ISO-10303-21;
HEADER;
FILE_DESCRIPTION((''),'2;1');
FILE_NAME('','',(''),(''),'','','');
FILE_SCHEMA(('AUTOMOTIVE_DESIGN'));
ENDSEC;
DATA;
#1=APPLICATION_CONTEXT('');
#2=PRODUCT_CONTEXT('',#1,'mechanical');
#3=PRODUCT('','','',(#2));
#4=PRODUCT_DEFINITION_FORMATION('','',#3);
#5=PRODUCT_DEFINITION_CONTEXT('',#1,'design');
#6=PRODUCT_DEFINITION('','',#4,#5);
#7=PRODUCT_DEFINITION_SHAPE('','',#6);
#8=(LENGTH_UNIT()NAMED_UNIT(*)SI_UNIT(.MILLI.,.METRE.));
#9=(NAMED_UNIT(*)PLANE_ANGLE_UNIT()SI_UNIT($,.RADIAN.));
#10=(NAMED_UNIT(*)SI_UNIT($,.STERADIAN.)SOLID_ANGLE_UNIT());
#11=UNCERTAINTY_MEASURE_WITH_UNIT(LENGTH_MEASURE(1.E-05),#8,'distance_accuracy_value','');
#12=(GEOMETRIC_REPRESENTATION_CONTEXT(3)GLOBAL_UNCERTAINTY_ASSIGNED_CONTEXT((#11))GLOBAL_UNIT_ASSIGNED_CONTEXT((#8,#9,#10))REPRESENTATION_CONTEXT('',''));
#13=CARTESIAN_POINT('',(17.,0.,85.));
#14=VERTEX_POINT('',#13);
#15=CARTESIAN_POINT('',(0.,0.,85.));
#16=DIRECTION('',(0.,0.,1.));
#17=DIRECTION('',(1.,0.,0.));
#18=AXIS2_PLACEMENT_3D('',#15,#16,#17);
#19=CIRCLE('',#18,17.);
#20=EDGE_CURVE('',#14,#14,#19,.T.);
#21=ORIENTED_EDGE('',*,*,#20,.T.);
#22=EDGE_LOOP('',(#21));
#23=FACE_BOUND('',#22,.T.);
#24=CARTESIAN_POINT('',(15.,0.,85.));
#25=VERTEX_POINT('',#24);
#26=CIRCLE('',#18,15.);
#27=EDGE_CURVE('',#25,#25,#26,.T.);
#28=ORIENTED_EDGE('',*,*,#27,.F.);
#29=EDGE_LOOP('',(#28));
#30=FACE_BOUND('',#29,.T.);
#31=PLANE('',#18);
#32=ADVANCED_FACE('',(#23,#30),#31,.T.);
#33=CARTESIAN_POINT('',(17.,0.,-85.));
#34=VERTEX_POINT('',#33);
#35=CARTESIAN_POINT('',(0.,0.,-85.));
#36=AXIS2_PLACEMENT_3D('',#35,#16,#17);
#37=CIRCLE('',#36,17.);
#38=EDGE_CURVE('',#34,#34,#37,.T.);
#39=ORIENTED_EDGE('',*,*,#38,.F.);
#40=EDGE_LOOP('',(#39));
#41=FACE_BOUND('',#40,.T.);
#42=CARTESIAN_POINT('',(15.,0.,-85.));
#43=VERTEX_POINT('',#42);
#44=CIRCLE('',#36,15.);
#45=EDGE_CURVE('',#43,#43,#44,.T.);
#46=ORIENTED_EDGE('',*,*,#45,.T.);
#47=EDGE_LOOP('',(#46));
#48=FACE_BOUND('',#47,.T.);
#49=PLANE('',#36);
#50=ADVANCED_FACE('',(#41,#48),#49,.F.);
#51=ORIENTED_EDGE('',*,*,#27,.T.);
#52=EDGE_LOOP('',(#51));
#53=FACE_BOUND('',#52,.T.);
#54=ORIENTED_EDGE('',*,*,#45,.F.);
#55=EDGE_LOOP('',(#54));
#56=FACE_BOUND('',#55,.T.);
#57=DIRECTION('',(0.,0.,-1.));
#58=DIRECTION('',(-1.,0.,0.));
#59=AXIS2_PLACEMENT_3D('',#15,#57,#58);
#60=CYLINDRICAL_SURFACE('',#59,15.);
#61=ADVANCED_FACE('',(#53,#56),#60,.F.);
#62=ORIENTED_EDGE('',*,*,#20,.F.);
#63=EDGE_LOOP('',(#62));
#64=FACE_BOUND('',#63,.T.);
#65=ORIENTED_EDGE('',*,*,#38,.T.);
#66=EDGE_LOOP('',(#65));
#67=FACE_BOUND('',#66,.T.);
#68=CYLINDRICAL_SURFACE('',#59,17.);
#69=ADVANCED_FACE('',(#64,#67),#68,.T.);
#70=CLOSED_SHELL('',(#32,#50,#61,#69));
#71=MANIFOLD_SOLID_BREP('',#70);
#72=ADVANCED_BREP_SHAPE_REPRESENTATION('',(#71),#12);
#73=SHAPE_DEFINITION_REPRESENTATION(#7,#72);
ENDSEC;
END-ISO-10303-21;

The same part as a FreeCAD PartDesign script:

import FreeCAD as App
import Part
import Sketcher
Q = App.Units.Quantity

doc = App.newDocument("Part")
body = doc.addObject("PartDesign::Body", "Body")

# Sketch on XY plane
sketch1 = doc.addObject("Sketcher::SketchObject", "Sketch")
body.addObject(sketch1)
sketch1.AttachmentSupport = (doc.XY_Plane, [""])
sketch1.MapMode = "FlatFace"
sketch1.addGeometry([
    Part.Circle(App.Vector(0, 0, 0), App.Vector(0, 0, 1), 17),
    Part.Circle(App.Vector(0, 0, 0), App.Vector(0, 0, 1), 15),
], False)
sketch1.addConstraint([
    Sketcher.Constraint("Coincident", 0, 3, -1, 1),
    Sketcher.Constraint("Coincident", 1, 3, -1, 1),
    Sketcher.Constraint("Diameter", 0, Q("34 mm")),
    Sketcher.Constraint("Diameter", 1, Q("30 mm")),
])
pad1 = doc.addObject("PartDesign::Pad", "Pad")
body.addObject(pad1)
pad1.Profile = sketch1
pad1.Length = 170
pad1.Midplane = True

doc.recompute()
